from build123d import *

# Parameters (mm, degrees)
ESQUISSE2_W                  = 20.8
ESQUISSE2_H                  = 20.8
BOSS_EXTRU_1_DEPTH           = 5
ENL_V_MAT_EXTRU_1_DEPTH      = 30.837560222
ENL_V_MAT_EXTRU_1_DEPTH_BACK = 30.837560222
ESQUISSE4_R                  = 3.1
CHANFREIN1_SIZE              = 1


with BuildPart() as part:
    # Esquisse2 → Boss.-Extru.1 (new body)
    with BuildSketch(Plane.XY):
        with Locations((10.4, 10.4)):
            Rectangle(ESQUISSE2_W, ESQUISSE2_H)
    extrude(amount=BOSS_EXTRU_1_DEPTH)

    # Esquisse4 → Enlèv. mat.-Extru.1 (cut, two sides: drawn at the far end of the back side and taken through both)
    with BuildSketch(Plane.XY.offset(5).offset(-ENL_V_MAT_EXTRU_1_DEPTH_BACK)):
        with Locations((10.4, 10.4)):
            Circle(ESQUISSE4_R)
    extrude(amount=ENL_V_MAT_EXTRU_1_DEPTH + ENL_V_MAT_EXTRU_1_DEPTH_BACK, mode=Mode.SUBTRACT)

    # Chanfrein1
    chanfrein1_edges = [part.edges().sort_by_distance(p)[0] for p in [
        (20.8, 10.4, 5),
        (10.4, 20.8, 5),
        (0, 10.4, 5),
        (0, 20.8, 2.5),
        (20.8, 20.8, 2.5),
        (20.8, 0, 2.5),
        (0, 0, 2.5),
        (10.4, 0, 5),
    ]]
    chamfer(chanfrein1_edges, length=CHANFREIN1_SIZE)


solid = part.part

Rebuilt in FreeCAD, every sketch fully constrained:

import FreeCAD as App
import Part
import Sketcher

V = App.Vector
Q = App.Units.Quantity


def edges_at(feature, points):
    """Names of the edges that pass closest to the given points."""
    edges = feature.Shape.Edges
    near = lambda p: min(range(len(edges)), key=lambda i: edges[i].distToShape(Part.Vertex(*p))[0])
    return sorted({f"Edge{near(p) + 1}" for p in points})


def add_polygon(sketch, points):
    """Adds a closed chain of lines whose ends are joined by coincident constraints."""
    first, n = sketch.GeometryCount, len(points)
    for a, b in zip(points, points[1:] + points[:1]):
        sketch.addGeometry(Part.LineSegment(App.Vector(*a, 0), App.Vector(*b, 0)), False)
    for i in range(n):
        sketch.addConstraint(Sketcher.Constraint("Coincident", first + i, 2, first + (i + 1) % n, 1))

doc = App.newDocument("Part")
body = doc.addObject("PartDesign::Body", "Body")

sketch1 = body.newObject("Sketcher::SketchObject", "Sketch")
sketch1.AttachmentSupport = (doc.getObject("XY_Plane"), [""])
sketch1.MapMode = "FlatFace"
add_polygon(sketch1, [(0, 20.8), (0, 0), (20.8, 0), (20.8, 20.8)])
sketch1.addConstraint(Sketcher.Constraint("Vertical", 0))
sketch1.addConstraint(Sketcher.Constraint("Horizontal", 1))
sketch1.addConstraint(Sketcher.Constraint("Vertical", 2))
sketch1.addConstraint(Sketcher.Constraint("Horizontal", 3))
sketch1.addConstraint(Sketcher.Constraint("Coincident", 0, 2, -1, 1))
sketch1.addConstraint(Sketcher.Constraint("Equal", 3, 0))
sketch1.addConstraint(Sketcher.Constraint("DistanceX", 1, 1, 1, 2, Q("20.8 mm")))
pad1 = body.newObject("PartDesign::Pad", "Pad")
pad1.Profile = sketch1
pad1.Length = 5

sketch2 = body.newObject("Sketcher::SketchObject", "Sketch001")
sketch2.AttachmentSupport = (doc.getObject("XY_Plane"), [""])
sketch2.MapMode = "FlatFace"
sketch2.AttachmentOffset = App.Placement(V(0, 0, 5), App.Rotation())
sketch2.addGeometry(Part.Circle(V(10.4, 10.4, 0), V(0, 0, 1), 3.1), False)
sketch2.addConstraint(Sketcher.Constraint("Diameter", 0, Q("6.2 mm")))
sketch2.addConstraint(Sketcher.Constraint("DistanceX", -1, 1, 0, 3, Q("10.4 mm")))
sketch2.addConstraint(Sketcher.Constraint("DistanceY", -1, 1, 0, 3, Q("10.4 mm")))
pocket1 = body.newObject("PartDesign::Pocket", "Pocket")
pocket1.Profile = sketch2
pocket1.Type = "ThroughAll"
pocket1.Midplane = True
doc.recompute()

chamfer = body.newObject("PartDesign::Chamfer", "Chamfer")
chamfer.Base = (pocket1, edges_at(pocket1, [
    (20.8, 10.4, 5),
    (10.4, 20.8, 5),
    (0, 10.4, 5),
    (0, 20.8, 2.5),
    (20.8, 20.8, 2.5),
    (20.8, 0, 2.5),
    (0, 0, 2.5),
    (10.4, 0, 5),
]))
chamfer.Size = 1

doc.recompute()
